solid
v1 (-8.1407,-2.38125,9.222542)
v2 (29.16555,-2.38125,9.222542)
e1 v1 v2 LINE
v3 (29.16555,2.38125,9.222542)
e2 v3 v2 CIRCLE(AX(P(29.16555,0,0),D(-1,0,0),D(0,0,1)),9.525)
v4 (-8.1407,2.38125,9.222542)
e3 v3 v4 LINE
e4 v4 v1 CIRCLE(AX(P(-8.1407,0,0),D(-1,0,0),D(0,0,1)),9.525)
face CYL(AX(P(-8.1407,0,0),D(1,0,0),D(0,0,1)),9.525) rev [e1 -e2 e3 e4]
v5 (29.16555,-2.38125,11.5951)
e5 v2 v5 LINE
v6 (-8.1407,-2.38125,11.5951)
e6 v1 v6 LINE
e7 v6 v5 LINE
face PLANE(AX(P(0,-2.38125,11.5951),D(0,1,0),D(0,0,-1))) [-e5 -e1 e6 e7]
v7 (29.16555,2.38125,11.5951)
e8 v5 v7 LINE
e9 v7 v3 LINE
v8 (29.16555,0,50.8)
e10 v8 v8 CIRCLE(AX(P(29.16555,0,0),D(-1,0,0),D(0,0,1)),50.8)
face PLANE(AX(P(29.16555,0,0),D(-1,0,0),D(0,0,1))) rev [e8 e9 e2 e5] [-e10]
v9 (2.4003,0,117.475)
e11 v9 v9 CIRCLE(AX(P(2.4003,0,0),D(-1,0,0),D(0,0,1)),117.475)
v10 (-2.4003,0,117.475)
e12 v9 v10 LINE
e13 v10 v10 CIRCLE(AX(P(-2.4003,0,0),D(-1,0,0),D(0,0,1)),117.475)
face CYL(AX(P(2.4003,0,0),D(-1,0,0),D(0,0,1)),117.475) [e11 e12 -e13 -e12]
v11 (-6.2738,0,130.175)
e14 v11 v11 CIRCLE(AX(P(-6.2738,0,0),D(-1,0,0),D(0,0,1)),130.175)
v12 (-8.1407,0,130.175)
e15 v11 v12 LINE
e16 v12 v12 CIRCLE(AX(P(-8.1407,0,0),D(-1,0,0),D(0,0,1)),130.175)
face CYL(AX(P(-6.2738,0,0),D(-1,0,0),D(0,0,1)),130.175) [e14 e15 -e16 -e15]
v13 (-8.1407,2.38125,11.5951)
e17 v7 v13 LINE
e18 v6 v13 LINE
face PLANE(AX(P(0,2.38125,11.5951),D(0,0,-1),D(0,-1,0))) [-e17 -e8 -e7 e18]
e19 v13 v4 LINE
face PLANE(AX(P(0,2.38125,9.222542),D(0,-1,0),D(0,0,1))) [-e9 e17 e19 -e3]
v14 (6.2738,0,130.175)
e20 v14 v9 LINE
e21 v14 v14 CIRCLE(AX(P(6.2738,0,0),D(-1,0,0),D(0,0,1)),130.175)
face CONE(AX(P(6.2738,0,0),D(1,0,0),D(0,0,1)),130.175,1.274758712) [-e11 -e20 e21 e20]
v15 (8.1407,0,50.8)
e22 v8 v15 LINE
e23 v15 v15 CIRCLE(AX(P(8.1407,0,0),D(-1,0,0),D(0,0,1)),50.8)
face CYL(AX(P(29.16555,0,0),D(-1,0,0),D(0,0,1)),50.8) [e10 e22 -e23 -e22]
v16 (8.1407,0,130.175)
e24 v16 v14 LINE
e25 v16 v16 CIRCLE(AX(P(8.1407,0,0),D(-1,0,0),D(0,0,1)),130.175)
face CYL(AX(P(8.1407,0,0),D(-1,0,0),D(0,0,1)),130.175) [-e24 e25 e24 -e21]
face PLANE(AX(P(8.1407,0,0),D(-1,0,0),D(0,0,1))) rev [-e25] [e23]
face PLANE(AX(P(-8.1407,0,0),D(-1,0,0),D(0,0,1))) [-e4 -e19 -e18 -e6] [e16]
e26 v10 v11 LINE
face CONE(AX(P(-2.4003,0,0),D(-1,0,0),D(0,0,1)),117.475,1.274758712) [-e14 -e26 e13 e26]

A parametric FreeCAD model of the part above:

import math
import FreeCAD as App
import Part
import Sketcher
Q = App.Units.Quantity


def add_polygon(sketch, points):
    """Adds a closed chain of lines whose ends are joined by coincident constraints."""
    first, n = sketch.GeometryCount, len(points)
    for a, b in zip(points, points[1:] + points[:1]):
        sketch.addGeometry(Part.LineSegment(App.Vector(*a, 0), App.Vector(*b, 0)), False)
    for i in range(n):
        sketch.addConstraint(Sketcher.Constraint("Coincident", first + i, 2, first + (i + 1) % n, 1))

doc = App.newDocument("Part")
params = doc.addObject("Spreadsheet::Sheet", "Params")
for row, (alias, value) in enumerate([
    ("sketch1_height", "4.75 in"),
    ("sketch1_width", "1.46875 in"),
    ("sketch1_width2", "0.189 in"),
    ("sketch1_height2", "1.625 in"),
    ("revolution_angle", "360 deg"),
    ("sketch2_radius", "0.375 in"),
    ("sketch2_width", "0.1875 in"),
], start=1):
    params.set(f"A{row}", alias)
    params.set(f"B{row}", "=" + value)
    params.setAlias(f"B{row}", alias)

body = doc.addObject("PartDesign::Body", "Body")

# Sketch on XZ plane
sketch1 = body.newObject("Sketcher::SketchObject", "Sketch")
sketch1.AttachmentSupport = (doc.getObject("XZ_Plane"), [""])
sketch1.MapMode = "FlatFace"
add_polygon(sketch1, [(-8.1, 9.5), (29.2, 9.5), (29.2, 50.8), (8.1, 50.8), (8.1, 130.2), (6.3, 130.2), (2.4, 117.5), (-2.4, 117.5), (-6.3, 130.2), (-8.1, 130.2)])  # lines 0-9
sketch1.addConstraint([
    Sketcher.Constraint("Horizontal", 0),
    Sketcher.Constraint("Vertical", 1),
    Sketcher.Constraint("Horizontal", 2),
    Sketcher.Constraint("Vertical", 3),
    Sketcher.Constraint("Horizontal", 4),
    Sketcher.Constraint("Horizontal", 6),
    Sketcher.Constraint("Horizontal", 8),
    Sketcher.Constraint("Vertical", 9),
    Sketcher.Constraint("Symmetric", 4, 2, 7, 2, -2),
    Sketcher.Constraint("Equal", 4, 8),
    Sketcher.Constraint("Equal", 5, 7),
    Sketcher.Constraint("DistanceY", -1, 1, 1, 2, Q("2 in")),
    Sketcher.Constraint("DistanceY", 9, 2, 9, 1, Q("4.75 in")),
    Sketcher.Constraint("DistanceY", 5, 2, 4, 2, Q("0.5 in")),
    Sketcher.Constraint("DistanceX", 0, 1, 0, 2, Q("1.46875 in")),
    Sketcher.Constraint("DistanceX", 6, 2, 6, 1, Q("0.189 in")),
    Sketcher.Constraint("DistanceY", 1, 1, 1, 2, Q("1.625 in")),
    Sketcher.Constraint("DistanceX", 4, 2, 4, 1, Q("0.0735 in")),
    Sketcher.Constraint("DistanceX", -1, 1, 4, 2, Q("0.247 in")),
])
sketch1.setExpression("Constraints[22]", "Params.sketch1_height")
sketch1.setExpression("Constraints[24]", "Params.sketch1_width")
sketch1.setExpression("Constraints[25]", "Params.sketch1_width2")
sketch1.setExpression("Constraints[26]", "Params.sketch1_height2")
revolution = body.newObject("PartDesign::Revolution", "Revolution")
revolution.Profile = sketch1
revolution.ReferenceAxis = (sketch1, ["H_Axis"])
revolution.setExpression("Angle", "Params.revolution_angle")

# Sketch on YZ plane
sketch2 = body.newObject("Sketcher::SketchObject", "Sketch001")
sketch2.AttachmentSupport = (doc.getObject("YZ_Plane"), [""])
sketch2.MapMode = "FlatFace"
sketch2.addGeometry([
    Part.LineSegment(App.Vector(2.4, 11.6, 0), App.Vector(-2.4, 11.6, 0)),
    Part.LineSegment(App.Vector(-2.4, 11.6, 0), App.Vector(-2.4, 9.2, 0)),
    Part.ArcOfCircle(Part.Circle(App.Vector(0, 0, 0), App.Vector(0, 0, 1), 9.5), math.radians(104), math.radians(436)),
    Part.LineSegment(App.Vector(2.4, 9.2, 0), App.Vector(2.4, 11.6, 0)),
], False)
sketch2.addConstraint([
    Sketcher.Constraint("Coincident", 0, 2, 1, 1),
    Sketcher.Constraint("Coincident", 1, 2, 2, 1),
    Sketcher.Constraint("Coincident", 2, 2, 3, 1),
    Sketcher.Constraint("Coincident", 3, 2, 0, 1),
    Sketcher.Constraint("Horizontal", 0),
    Sketcher.Constraint("Vertical", 1),
    Sketcher.Constraint("Vertical", 3),
    Sketcher.Constraint("Coincident", 2, 3, -1, 1),
    Sketcher.Constraint("Horizontal", 1, 2, 2, 2),
    Sketcher.Constraint("Radius", 2, Q("0.375 in")),
    Sketcher.Constraint("DistanceX", 0, 2, 0, 1, Q("0.1875 in")),
    Sketcher.Constraint("DistanceY", -1, 1, 0, 2, Q("0.4565 in")),
])
sketch2.setExpression("Constraints[9]", "Params.sketch2_radius")
sketch2.setExpression("Constraints[10]", "Params.sketch2_width")
pocket1 = body.newObject("PartDesign::Pocket", "Pocket")
pocket1.Profile = sketch2
pocket1.Type = "ThroughAll"
pocket1.Midplane = True

doc.recompute()
